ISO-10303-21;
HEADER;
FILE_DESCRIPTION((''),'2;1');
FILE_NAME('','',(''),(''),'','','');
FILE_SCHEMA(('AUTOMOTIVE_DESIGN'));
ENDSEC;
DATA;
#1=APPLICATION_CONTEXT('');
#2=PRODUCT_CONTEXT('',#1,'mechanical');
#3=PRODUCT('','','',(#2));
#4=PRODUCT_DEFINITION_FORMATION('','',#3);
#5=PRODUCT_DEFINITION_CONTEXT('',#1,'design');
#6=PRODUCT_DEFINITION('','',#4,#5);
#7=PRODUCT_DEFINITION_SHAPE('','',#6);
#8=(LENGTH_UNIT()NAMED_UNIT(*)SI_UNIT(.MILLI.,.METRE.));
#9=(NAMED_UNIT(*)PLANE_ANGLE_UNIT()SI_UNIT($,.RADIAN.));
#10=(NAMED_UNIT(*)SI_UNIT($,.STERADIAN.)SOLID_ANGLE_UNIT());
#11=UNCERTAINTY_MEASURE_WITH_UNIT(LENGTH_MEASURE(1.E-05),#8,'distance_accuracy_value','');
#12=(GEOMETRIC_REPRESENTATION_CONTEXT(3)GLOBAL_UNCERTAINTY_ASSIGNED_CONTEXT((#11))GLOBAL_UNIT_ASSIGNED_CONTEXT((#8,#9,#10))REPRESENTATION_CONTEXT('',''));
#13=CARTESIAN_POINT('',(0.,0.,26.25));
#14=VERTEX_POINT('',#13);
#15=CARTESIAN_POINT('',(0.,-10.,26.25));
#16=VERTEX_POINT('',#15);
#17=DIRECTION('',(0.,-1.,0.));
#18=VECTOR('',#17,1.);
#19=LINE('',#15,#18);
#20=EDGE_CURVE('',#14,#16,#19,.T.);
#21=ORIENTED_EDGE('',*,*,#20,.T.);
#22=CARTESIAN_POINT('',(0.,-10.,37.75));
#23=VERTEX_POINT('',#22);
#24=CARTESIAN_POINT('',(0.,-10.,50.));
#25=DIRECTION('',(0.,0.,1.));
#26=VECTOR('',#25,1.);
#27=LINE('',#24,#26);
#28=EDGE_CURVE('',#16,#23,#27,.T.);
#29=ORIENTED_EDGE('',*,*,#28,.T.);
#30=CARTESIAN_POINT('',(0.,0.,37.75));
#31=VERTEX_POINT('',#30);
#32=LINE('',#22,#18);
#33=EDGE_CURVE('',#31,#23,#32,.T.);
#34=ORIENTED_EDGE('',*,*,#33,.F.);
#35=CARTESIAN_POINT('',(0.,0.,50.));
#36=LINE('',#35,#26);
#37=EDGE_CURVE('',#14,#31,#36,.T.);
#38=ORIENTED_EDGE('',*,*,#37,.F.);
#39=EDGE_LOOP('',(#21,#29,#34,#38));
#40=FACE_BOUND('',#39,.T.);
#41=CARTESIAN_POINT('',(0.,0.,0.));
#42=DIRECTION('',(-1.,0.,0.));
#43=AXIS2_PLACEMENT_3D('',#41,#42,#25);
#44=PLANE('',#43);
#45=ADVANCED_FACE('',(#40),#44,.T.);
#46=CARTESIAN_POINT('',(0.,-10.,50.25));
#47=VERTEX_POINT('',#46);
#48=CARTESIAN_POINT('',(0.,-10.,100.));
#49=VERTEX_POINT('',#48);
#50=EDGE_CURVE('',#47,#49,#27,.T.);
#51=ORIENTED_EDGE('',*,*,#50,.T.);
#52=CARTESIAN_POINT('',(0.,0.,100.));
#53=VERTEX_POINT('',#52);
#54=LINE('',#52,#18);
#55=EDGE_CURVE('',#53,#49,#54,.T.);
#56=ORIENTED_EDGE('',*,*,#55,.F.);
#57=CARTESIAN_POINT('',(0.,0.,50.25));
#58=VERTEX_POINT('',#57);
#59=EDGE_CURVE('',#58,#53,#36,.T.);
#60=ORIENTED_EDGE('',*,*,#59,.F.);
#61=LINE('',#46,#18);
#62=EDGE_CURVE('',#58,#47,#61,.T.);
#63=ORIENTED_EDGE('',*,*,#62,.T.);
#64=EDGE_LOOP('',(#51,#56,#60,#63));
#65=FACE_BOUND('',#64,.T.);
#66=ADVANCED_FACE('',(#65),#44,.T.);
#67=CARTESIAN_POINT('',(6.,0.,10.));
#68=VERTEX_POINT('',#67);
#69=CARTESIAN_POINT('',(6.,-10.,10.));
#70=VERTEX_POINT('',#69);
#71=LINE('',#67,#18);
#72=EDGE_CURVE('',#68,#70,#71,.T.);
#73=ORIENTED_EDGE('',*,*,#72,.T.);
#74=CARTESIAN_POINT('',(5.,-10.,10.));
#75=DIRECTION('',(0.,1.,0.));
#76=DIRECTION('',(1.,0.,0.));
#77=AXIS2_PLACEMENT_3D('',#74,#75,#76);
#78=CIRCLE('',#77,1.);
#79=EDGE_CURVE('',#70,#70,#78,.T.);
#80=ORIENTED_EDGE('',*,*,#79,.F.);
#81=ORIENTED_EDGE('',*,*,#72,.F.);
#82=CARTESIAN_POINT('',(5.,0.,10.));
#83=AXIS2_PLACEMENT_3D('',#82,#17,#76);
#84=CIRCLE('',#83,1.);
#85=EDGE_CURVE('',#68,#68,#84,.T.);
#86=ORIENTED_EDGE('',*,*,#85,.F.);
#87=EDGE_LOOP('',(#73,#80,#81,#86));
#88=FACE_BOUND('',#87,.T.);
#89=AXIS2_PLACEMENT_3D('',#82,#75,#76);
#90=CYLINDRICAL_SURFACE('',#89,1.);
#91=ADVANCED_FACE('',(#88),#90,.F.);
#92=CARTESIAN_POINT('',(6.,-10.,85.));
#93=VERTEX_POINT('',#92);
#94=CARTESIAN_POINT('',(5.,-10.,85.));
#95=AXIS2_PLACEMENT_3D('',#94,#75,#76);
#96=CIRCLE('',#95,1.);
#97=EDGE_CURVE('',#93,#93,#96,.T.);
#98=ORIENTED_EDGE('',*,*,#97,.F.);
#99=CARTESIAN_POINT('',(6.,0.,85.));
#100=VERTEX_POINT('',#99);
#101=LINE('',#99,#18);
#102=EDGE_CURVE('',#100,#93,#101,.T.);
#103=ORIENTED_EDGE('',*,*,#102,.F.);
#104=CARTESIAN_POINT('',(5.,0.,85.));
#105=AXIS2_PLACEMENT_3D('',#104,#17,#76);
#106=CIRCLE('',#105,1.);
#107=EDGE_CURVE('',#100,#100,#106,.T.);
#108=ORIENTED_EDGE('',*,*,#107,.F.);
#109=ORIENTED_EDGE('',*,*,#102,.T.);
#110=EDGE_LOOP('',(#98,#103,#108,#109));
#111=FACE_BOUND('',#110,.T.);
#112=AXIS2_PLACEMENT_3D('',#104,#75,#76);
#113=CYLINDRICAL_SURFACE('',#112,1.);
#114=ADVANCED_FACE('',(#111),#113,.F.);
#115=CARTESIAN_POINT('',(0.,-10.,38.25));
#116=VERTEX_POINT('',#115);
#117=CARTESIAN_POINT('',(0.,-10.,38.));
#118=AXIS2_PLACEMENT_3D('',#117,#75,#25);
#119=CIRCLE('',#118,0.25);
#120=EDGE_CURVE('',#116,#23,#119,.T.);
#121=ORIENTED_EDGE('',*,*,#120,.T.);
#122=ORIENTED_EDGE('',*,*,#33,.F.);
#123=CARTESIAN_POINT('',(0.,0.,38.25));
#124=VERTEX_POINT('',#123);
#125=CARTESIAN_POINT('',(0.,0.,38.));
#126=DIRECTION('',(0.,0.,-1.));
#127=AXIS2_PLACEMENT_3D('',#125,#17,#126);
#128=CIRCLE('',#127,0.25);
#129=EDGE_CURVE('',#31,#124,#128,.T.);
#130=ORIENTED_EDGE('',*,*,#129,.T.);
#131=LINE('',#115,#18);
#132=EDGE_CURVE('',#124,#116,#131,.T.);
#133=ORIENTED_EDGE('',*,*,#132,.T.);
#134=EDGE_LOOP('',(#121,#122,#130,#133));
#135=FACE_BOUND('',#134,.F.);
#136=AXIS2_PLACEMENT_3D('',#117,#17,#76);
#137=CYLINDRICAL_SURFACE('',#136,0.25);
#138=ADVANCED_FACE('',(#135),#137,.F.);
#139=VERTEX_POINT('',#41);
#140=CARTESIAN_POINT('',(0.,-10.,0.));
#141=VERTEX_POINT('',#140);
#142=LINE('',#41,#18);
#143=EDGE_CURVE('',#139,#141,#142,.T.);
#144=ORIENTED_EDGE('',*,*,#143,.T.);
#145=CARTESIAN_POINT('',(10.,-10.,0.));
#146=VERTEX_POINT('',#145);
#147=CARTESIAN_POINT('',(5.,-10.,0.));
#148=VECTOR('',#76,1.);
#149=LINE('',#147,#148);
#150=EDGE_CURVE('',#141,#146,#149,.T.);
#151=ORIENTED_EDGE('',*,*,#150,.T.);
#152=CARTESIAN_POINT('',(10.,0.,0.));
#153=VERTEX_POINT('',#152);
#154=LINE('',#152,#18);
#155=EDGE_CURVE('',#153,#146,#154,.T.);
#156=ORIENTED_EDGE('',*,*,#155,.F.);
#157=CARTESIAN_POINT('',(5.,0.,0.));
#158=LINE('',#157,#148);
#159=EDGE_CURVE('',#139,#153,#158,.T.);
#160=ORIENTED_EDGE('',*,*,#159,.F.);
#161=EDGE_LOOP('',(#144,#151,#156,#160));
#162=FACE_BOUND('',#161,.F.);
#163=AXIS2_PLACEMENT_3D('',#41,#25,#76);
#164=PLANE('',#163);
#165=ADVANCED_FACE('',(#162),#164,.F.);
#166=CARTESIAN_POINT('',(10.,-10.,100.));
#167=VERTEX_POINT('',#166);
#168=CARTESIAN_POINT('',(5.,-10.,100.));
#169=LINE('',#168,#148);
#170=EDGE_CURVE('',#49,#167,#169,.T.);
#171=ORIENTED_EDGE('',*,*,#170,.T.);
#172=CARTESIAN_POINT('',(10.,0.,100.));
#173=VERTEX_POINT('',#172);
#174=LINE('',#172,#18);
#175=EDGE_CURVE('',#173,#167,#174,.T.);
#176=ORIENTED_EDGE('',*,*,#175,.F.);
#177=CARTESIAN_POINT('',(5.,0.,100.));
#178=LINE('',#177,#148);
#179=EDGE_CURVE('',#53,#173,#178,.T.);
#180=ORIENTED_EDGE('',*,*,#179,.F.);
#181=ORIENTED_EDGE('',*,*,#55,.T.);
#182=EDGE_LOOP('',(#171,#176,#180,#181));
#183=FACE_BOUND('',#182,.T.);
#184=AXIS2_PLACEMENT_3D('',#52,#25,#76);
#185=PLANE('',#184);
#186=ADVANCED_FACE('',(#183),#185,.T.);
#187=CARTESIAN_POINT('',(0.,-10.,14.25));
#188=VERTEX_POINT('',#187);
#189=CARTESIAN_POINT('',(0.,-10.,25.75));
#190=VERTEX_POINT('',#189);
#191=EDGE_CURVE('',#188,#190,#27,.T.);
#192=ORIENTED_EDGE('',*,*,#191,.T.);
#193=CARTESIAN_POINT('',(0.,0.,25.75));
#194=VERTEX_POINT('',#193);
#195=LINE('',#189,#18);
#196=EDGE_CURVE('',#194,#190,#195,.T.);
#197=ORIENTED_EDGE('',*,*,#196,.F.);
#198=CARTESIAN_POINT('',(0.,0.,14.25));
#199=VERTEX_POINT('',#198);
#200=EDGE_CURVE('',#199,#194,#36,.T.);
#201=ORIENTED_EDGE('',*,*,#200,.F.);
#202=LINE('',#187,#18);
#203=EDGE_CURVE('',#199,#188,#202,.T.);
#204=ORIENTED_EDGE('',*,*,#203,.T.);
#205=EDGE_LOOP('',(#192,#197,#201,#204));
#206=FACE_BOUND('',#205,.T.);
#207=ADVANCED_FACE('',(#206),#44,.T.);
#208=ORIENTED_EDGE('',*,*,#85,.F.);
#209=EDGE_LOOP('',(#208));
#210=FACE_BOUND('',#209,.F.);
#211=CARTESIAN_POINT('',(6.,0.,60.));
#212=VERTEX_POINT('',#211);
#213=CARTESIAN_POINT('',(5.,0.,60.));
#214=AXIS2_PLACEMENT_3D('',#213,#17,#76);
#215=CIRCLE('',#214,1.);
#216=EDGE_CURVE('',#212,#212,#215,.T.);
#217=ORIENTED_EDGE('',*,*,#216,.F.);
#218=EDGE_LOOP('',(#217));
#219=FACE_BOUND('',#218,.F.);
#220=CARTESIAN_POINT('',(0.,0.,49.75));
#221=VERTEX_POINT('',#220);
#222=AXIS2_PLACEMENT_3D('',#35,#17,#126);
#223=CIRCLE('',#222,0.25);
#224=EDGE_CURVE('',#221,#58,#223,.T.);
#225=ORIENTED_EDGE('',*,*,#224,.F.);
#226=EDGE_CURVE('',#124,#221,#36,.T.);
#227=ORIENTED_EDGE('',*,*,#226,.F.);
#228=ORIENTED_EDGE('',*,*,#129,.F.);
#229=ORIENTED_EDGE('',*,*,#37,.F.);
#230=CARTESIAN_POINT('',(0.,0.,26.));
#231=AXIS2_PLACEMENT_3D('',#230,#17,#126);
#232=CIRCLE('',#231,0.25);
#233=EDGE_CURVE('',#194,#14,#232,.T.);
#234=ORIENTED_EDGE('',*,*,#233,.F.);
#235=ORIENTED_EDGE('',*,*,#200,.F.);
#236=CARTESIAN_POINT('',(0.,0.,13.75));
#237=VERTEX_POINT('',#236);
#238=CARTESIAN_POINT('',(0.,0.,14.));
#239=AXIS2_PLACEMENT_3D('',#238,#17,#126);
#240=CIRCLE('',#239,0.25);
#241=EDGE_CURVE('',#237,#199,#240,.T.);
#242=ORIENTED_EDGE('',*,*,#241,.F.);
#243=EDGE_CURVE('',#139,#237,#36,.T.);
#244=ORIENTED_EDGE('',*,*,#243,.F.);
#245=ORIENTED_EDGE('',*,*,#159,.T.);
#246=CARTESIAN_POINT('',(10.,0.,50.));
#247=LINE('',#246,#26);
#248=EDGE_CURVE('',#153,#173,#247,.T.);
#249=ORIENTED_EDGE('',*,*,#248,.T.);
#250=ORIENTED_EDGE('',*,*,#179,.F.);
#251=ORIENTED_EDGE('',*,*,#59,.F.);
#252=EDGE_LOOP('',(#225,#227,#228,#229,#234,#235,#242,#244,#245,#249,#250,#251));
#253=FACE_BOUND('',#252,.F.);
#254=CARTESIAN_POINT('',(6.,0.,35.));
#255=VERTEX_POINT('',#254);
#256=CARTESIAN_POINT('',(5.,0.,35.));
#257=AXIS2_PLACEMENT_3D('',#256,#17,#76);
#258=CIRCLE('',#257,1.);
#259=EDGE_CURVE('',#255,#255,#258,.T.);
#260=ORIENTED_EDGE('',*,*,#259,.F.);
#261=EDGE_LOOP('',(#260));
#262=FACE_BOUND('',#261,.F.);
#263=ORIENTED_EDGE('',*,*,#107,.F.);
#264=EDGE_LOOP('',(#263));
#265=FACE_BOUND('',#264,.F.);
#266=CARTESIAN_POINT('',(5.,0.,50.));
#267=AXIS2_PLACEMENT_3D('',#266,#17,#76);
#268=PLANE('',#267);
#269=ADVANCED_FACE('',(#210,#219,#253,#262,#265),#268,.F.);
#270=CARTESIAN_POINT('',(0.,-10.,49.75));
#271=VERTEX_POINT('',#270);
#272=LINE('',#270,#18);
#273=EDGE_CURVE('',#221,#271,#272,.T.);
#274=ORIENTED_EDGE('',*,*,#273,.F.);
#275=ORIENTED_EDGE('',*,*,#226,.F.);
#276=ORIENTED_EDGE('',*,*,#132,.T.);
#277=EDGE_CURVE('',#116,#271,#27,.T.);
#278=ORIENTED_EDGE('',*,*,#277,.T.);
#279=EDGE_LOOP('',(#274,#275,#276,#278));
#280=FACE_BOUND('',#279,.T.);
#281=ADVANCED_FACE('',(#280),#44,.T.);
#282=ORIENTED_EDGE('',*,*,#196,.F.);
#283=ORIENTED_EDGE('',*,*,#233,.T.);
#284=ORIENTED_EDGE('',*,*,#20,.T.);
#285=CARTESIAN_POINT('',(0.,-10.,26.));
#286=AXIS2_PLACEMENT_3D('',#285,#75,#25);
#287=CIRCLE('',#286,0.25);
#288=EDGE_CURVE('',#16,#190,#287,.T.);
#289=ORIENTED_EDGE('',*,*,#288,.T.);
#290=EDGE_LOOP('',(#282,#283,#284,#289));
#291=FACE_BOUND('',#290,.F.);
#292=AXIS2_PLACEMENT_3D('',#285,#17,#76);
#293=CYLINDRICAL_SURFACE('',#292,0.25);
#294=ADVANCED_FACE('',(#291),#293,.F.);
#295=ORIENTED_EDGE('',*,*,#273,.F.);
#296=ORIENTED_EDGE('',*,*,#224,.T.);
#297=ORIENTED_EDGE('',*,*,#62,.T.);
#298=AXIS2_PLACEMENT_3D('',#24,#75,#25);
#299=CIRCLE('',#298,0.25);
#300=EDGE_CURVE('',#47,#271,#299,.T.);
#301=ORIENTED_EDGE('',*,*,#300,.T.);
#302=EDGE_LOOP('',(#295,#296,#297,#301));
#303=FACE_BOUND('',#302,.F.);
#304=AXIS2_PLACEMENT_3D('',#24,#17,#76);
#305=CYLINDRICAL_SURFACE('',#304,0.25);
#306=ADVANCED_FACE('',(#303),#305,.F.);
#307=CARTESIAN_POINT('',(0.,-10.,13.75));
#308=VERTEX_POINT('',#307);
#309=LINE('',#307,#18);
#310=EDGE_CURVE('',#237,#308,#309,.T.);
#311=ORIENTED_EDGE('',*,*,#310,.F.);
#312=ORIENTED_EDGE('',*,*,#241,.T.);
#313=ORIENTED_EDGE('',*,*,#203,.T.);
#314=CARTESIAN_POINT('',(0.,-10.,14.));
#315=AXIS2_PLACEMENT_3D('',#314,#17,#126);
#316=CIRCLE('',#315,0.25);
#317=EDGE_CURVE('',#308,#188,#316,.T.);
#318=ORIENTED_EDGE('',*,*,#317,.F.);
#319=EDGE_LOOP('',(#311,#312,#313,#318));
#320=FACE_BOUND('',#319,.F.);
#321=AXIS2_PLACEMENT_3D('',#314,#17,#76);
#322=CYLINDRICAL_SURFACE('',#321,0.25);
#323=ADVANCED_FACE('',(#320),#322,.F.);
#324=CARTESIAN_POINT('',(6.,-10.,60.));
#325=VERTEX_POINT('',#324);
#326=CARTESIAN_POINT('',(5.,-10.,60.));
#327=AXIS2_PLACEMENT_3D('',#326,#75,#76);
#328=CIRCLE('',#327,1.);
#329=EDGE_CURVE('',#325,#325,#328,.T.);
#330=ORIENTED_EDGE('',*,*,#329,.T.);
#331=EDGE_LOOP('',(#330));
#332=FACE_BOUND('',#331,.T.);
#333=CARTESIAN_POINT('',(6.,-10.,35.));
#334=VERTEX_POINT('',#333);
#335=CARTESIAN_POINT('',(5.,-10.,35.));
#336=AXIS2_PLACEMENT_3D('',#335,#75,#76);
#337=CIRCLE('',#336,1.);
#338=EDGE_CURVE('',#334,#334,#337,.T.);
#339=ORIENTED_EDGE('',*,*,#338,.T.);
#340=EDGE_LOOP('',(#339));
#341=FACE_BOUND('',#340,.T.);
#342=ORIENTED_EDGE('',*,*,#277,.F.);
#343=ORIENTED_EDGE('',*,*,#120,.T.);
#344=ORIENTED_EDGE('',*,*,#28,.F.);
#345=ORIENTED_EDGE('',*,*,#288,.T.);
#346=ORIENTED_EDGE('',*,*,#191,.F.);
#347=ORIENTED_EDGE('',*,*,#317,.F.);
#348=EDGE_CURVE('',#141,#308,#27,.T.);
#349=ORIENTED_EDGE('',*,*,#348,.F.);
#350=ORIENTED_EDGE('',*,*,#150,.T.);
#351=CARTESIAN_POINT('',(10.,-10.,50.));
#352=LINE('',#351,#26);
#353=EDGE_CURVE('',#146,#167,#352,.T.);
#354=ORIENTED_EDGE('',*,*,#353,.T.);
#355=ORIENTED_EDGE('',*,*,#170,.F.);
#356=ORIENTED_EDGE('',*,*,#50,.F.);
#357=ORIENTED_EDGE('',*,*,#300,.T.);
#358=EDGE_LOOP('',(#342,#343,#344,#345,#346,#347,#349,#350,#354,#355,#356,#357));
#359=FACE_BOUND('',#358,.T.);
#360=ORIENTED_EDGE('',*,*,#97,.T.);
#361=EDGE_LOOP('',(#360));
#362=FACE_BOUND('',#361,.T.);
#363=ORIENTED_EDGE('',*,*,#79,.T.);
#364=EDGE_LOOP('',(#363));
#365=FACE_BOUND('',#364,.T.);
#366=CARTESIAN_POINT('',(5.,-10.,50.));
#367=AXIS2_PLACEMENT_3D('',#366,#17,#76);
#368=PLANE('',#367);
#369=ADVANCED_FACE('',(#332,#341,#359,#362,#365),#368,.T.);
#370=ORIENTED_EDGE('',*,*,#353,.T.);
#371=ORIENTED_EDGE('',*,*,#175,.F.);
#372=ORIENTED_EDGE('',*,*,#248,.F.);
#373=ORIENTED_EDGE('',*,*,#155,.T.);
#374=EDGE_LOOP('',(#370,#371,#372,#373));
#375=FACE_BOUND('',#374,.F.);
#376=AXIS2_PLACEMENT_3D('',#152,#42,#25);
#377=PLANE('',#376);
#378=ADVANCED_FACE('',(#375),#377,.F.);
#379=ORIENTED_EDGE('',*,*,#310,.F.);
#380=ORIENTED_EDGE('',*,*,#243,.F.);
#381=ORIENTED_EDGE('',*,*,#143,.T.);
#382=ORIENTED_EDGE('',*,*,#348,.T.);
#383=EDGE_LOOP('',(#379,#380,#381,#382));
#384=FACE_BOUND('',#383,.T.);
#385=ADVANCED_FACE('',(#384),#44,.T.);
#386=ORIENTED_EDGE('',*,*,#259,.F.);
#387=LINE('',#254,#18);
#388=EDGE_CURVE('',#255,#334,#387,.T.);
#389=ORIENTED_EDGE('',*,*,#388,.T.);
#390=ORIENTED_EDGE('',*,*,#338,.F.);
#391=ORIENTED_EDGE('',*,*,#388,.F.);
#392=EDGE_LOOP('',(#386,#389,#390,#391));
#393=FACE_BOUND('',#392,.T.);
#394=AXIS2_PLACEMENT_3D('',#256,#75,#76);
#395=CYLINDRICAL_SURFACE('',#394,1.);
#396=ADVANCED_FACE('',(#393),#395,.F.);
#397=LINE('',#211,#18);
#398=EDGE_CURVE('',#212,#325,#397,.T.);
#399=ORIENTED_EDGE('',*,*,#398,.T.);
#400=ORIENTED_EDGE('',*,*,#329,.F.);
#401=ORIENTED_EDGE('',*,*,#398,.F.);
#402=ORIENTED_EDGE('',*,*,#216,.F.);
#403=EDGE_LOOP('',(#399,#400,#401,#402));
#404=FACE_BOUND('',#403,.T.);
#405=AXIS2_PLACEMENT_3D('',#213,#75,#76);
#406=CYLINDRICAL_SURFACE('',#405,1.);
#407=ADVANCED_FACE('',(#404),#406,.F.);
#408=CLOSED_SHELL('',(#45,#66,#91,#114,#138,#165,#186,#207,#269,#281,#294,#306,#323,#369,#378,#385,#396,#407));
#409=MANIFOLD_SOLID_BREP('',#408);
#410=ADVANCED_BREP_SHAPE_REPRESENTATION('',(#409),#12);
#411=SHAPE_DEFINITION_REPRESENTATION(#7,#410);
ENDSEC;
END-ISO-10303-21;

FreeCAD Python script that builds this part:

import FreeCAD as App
import Part
import Sketcher
from FreeCAD import Vector

doc = App.newDocument("Part")
body = doc.addObject("PartDesign::Body", "Body")

# Sketch on XZ plane
sketch1 = body.newObject("Sketcher::SketchObject", "Sketch")
sketch1.AttachmentSupport = (doc.getObject("XZ_Plane"), [""])
sketch1.MapMode = "FlatFace"
sketch1.addGeometry(Part.LineSegment(Vector(0, 100, 0), Vector(0, 0, 0)), False)
sketch1.addGeometry(Part.LineSegment(Vector(0, 0, 0), Vector(10, 0, 0)), False)
sketch1.addGeometry(Part.LineSegment(Vector(10, 0, 0), Vector(10, 100, 0)), False)
sketch1.addGeometry(Part.LineSegment(Vector(10, 100, 0), Vector(0, 100, 0)), False)
sketch1.addConstraint(Sketcher.Constraint("Coincident", 0, 2, 1, 1))
sketch1.addConstraint(Sketcher.Constraint("Coincident", 1, 2, 2, 1))
sketch1.addConstraint(Sketcher.Constraint("Coincident", 2, 2, 3, 1))
sketch1.addConstraint(Sketcher.Constraint("Coincident", 3, 2, 0, 1))
sketch1.addConstraint(Sketcher.Constraint("Vertical", 0))
sketch1.addConstraint(Sketcher.Constraint("Horizontal", 1))
sketch1.addConstraint(Sketcher.Constraint("Vertical", 2))
sketch1.addConstraint(Sketcher.Constraint("Horizontal", 3))
sketch1.addConstraint(Sketcher.Constraint("Coincident", 0, 2, -1, 1))
sketch1.addConstraint(Sketcher.Constraint("DistanceX", 1, 1, 1, 2, 10.0))
sketch1.addConstraint(Sketcher.Constraint("DistanceY", 0, 2, 0, 1, 100.0))
pad1 = body.newObject("PartDesign::Pad", "Pad")
pad1.Profile = sketch1
pad1.Length = 10

# Sketch on XZ plane
sketch2 = body.newObject("Sketcher::SketchObject", "Sketch001")
sketch2.AttachmentSupport = (doc.getObject("XZ_Plane"), [""])
sketch2.MapMode = "FlatFace"
sketch2.AttachmentOffset = App.Placement(Vector(0, 0, 10), App.Rotation())
sketch2.addGeometry(Part.Circle(Vector(0, 50, 0), Vector(0, 0, 1), 0.25), False)
sketch2.addGeometry(Part.Circle(Vector(0, 38, 0), Vector(0, 0, 1), 0.25), False)
sketch2.addGeometry(Part.Circle(Vector(0, 26, 0), Vector(0, 0, 1), 0.25), False)
sketch2.addGeometry(Part.Circle(Vector(0, 14, 0), Vector(0, 0, 1), 0.25), False)
sketch2.addConstraint(Sketcher.Constraint("Equal", 0, 1))
sketch2.addConstraint(Sketcher.Constraint("Equal", 1, 2))
sketch2.addConstraint(Sketcher.Constraint("Equal", 2, 3))
sketch2.addConstraint(Sketcher.Constraint("PointOnObject", 0, 3, -2))
sketch2.addConstraint(Sketcher.Constraint("PointOnObject", 1, 3, -2))
sketch2.addConstraint(Sketcher.Constraint("PointOnObject", 2, 3, -2))
sketch2.addConstraint(Sketcher.Constraint("PointOnObject", 3, 3, -2))
sketch2.addConstraint(Sketcher.Constraint("Diameter", 0, 0.5))
sketch2.addConstraint(Sketcher.Constraint("DistanceY", -1, 1, 0, 3, 50.0))
sketch2.addConstraint(Sketcher.Constraint("DistanceY", -1, 1, 1, 3, 38.0))
sketch2.addConstraint(Sketcher.Constraint("DistanceY", -1, 1, 2, 3, 26.0))
sketch2.addConstraint(Sketcher.Constraint("DistanceY", -1, 1, 3, 3, 14.0))
pocket1 = body.newObject("PartDesign::Pocket", "Pocket")
pocket1.Profile = sketch2
pocket1.Type = "ThroughAll"

# Sketch on XZ plane
sketch3 = body.newObject("Sketcher::SketchObject", "Sketch002")
sketch3.AttachmentSupport = (doc.getObject("XZ_Plane"), [""])
sketch3.MapMode = "FlatFace"
sketch3.addGeometry(Part.Circle(Vector(5, 85, 0), Vector(0, 0, 1), 1), False)
sketch3.addGeometry(Part.Circle(Vector(5, 60, 0), Vector(0, 0, 1), 1), False)
sketch3.addGeometry(Part.Circle(Vector(5, 35, 0), Vector(0, 0, 1), 1), False)
sketch3.addGeometry(Part.Circle(Vector(5, 10, 0), Vector(0, 0, 1), 1), False)
sketch3.addConstraint(Sketcher.Constraint("Equal", 0, 1))
sketch3.addConstraint(Sketcher.Constraint("Equal", 1, 2))
sketch3.addConstraint(Sketcher.Constraint("Equal", 2, 3))
sketch3.addConstraint(Sketcher.Constraint("Vertical", 0, 3, 1, 3))
sketch3.addConstraint(Sketcher.Constraint("Vertical", 1, 3, 2, 3))
sketch3.addConstraint(Sketcher.Constraint("Vertical", 2, 3, 3, 3))
sketch3.addConstraint(Sketcher.Constraint("Diameter", 0, 2.0))
sketch3.addConstraint(Sketcher.Constraint("DistanceX", -1, 1, 0, 3, 5.0))
sketch3.addConstraint(Sketcher.Constraint("DistanceY", -1, 1, 0, 3, 85.0))
sketch3.addConstraint(Sketcher.Constraint("DistanceY", -1, 1, 1, 3, 60.0))
sketch3.addConstraint(Sketcher.Constraint("DistanceY", -1, 1, 2, 3, 35.0))
sketch3.addConstraint(Sketcher.Constraint("DistanceY", -1, 1, 3, 3, 10.0))
pocket2 = body.newObject("PartDesign::Pocket", "Pocket001")
pocket2.Profile = sketch3
pocket2.Type = "ThroughAll"
pocket2.Reversed = True

doc.recompute()
